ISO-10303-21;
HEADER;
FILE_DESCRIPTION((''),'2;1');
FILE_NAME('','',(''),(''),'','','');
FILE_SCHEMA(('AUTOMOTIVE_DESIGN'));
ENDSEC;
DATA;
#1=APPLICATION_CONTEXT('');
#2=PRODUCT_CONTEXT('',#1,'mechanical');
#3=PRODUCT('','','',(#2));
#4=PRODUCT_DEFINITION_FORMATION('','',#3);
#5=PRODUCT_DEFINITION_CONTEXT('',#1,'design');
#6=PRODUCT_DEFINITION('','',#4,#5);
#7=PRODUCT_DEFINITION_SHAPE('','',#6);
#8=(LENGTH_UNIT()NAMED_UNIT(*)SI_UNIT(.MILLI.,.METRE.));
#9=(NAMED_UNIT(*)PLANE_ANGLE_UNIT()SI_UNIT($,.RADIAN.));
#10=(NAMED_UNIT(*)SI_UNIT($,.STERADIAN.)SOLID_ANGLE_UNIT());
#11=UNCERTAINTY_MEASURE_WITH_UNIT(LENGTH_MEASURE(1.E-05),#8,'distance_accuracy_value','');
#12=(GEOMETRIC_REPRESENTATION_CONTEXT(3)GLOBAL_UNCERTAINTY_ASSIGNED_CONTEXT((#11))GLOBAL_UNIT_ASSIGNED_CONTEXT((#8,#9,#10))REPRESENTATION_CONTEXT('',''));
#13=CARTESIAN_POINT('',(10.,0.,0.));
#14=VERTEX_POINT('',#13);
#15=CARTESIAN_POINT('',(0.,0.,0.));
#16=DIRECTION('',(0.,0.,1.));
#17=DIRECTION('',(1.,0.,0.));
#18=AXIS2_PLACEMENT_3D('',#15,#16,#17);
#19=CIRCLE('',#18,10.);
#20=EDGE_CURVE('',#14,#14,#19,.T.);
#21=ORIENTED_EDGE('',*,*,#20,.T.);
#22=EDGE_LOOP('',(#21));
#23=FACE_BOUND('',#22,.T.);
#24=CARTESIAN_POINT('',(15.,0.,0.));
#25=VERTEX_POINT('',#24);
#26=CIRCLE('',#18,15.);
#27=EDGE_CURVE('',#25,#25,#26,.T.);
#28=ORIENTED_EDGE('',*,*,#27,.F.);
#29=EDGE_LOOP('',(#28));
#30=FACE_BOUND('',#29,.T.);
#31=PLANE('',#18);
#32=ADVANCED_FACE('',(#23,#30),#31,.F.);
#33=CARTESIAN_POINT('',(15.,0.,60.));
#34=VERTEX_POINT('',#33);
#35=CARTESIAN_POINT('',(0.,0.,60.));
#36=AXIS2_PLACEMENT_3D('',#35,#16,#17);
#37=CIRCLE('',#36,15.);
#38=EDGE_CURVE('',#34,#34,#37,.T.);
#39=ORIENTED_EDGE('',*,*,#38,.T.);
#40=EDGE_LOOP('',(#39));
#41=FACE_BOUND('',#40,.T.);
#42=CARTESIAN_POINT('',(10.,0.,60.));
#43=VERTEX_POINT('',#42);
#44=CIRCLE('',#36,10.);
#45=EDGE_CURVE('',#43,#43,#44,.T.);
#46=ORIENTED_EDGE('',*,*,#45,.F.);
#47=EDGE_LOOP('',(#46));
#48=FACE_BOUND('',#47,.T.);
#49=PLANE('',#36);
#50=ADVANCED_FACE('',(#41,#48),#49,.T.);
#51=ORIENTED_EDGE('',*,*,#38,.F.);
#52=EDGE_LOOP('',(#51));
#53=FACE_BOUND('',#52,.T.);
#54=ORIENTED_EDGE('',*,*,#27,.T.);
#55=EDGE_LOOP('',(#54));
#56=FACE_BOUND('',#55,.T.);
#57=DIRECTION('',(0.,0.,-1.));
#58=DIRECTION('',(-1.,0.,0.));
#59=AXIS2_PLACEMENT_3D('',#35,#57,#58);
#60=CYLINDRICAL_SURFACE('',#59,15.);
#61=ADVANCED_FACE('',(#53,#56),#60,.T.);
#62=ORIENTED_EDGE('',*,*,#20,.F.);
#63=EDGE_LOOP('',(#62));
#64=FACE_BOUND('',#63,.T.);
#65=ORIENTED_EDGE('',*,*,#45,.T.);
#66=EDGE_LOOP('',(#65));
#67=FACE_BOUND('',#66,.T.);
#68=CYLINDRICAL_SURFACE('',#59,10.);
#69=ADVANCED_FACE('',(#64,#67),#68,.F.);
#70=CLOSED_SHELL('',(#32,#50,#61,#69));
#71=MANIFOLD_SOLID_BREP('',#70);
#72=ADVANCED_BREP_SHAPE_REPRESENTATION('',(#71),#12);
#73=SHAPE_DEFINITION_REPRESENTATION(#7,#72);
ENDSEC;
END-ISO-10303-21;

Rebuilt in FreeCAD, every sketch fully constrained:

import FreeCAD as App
import Part
import Sketcher
from FreeCAD import Vector

doc = App.newDocument("Part")
params = doc.addObject("Spreadsheet::Sheet", "Params")
for row, (alias, value) in enumerate([
    ("sketch1_diameter", "30 mm"),
    ("sketch1_diameter2", "20 mm"),
    ("pad1_length", "60 mm"),
], start=1):
    params.set(f"A{row}", alias)
    params.set(f"B{row}", "=" + value)
    params.setAlias(f"B{row}", alias)

body = doc.addObject("PartDesign::Body", "Body")

# Sketch on XY plane
sketch1 = body.newObject("Sketcher::SketchObject", "Sketch")
sketch1.AttachmentSupport = (doc.getObject("XY_Plane"), [""])
sketch1.MapMode = "FlatFace"
sketch1.addGeometry([
    Part.Circle(Vector(0, 0, 0), Vector(0, 0, 1), 15),
    Part.Circle(Vector(0, 0, 0), Vector(0, 0, 1), 10),
], False)
sketch1.addConstraint([
    Sketcher.Constraint("Coincident", 0, 3, -1, 1),
    Sketcher.Constraint("Coincident", 1, 3, -1, 1),
    Sketcher.Constraint("Diameter", 0, 30.0),
    Sketcher.Constraint("Diameter", 1, 20.0),
])
sketch1.setExpression("Constraints[2]", "Params.sketch1_diameter")
sketch1.setExpression("Constraints[3]", "Params.sketch1_diameter2")
pad1 = body.newObject("PartDesign::Pad", "Pad")
pad1.Profile = sketch1
pad1.setExpression("Length", "Params.pad1_length")

doc.recompute()
